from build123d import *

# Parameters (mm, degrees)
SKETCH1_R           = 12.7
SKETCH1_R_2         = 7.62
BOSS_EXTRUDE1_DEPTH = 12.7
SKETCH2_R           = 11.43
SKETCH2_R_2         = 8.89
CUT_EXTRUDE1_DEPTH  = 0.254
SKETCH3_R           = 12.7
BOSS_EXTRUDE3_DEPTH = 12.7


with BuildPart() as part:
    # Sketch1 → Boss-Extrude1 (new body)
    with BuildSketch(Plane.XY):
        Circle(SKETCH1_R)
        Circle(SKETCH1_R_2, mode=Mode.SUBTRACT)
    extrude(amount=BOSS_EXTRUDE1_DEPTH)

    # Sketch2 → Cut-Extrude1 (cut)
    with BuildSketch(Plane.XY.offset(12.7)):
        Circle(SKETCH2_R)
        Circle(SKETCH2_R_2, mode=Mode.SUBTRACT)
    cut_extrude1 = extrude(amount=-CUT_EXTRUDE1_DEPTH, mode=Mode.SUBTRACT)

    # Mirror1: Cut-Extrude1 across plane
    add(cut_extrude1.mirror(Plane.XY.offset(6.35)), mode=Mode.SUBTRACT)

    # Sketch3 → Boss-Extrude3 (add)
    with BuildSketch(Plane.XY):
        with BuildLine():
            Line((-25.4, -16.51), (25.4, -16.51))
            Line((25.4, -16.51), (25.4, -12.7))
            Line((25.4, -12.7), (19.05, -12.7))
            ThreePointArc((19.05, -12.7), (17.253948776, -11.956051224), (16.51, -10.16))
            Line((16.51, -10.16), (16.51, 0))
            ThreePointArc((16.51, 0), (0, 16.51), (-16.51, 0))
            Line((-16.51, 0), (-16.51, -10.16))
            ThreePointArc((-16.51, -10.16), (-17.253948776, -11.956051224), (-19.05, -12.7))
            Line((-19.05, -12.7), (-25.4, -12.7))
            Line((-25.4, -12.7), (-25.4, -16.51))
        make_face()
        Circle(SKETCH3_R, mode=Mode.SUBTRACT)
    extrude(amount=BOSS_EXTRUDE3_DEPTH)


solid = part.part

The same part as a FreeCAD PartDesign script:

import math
import FreeCAD as App
import Part
import Sketcher
from FreeCAD import Vector
Q = App.Units.Quantity

doc = App.newDocument("Part")
body = doc.addObject("PartDesign::Body", "Body")

sketch1 = body.newObject("Sketcher::SketchObject", "Sketch")
sketch1.AttachmentSupport = (doc.getObject("XY_Plane"), [""])
sketch1.MapMode = "FlatFace"
sketch1.addGeometry([
    Part.Circle(Vector(0, 0, 0), Vector(0, 0, 1), 13),
    Part.Circle(Vector(0, 0, 0), Vector(0, 0, 1), 8),
], False)
sketch1.addConstraint([
    Sketcher.Constraint("Coincident", 0, 3, -1, 1),
    Sketcher.Constraint("Coincident", 1, 3, -1, 1),
    Sketcher.Constraint("Diameter", 0, Q("1 in")),
    Sketcher.Constraint("Diameter", 1, Q("0.6 in")),
])
pad1 = body.newObject("PartDesign::Pad", "Pad")
pad1.Profile = sketch1
pad1.Length = Q("0.5 in")

sketch2 = body.newObject("Sketcher::SketchObject", "Sketch001")
sketch2.AttachmentSupport = (doc.getObject("XY_Plane"), [""])
sketch2.MapMode = "FlatFace"
sketch2.AttachmentOffset = App.Placement(Vector(0, 0, 0.5 * 25.4), App.Rotation())
sketch2.addGeometry([
    Part.Circle(Vector(0, 0, 0), Vector(0, 0, 1), 11),
    Part.Circle(Vector(0, 0, 0), Vector(0, 0, 1), 9),
], False)
sketch2.addConstraint([
    Sketcher.Constraint("Coincident", 0, 3, -1, 1),
    Sketcher.Constraint("Coincident", 1, 3, -1, 1),
    Sketcher.Constraint("Diameter", 0, Q("0.9 in")),
    Sketcher.Constraint("Diameter", 1, Q("0.7 in")),
])
pocket1 = body.newObject("PartDesign::Pocket", "Pocket")
pocket1.Profile = sketch2
pocket1.Length = Q("0.01 in")
doc.recompute()

datumplane = body.newObject("PartDesign::Plane", "DatumPlane")
datumplane.AttachmentSupport = (doc.getObject("XY_Plane"), [""])
datumplane.MapMode = "FlatFace"
datumplane.AttachmentOffset = App.Placement(Vector(0, 0, 0.25 * 25.4), App.Rotation())
mirrored = body.newObject("PartDesign::Mirrored", "Mirrored")
mirrored.Originals = [pocket1]
mirrored.MirrorPlane = (datumplane, [""])
body.Tip = mirrored

sketch3 = body.newObject("Sketcher::SketchObject", "Sketch002")
sketch3.AttachmentSupport = (doc.getObject("XY_Plane"), [""])
sketch3.MapMode = "FlatFace"
sketch3.addGeometry([
    Part.LineSegment(Vector(-25.4, -16.5, 0), Vector(25.4, -16.5, 0)),
    Part.LineSegment(Vector(25.4, -16.5, 0), Vector(25.4, -12.7, 0)),
    Part.LineSegment(Vector(25.4, -12.7, 0), Vector(19.1, -12.7, 0)),
    Part.ArcOfCircle(Part.Circle(Vector(19.1, -10.2, 0), Vector(0, 0, 1), 2.5), math.radians(-180), math.radians(-90)),
    Part.LineSegment(Vector(16.5, -10.2, 0), Vector(16.5, 0, 0)),
    Part.ArcOfCircle(Part.Circle(Vector(0, 0, 0), Vector(0, 0, 1), 16.5), math.radians(0), math.radians(180)),
    Part.LineSegment(Vector(-16.5, 0, 0), Vector(-16.5, -10.2, 0)),
    Part.ArcOfCircle(Part.Circle(Vector(-19.1, -10.2, 0), Vector(0, 0, 1), 2.5), math.radians(-90), math.radians(0)),
    Part.LineSegment(Vector(-19.1, -12.7, 0), Vector(-25.4, -12.7, 0)),
    Part.LineSegment(Vector(-25.4, -12.7, 0), Vector(-25.4, -16.5, 0)),
    Part.Circle(Vector(0, 0, 0), Vector(0, 0, 1), 12.7),
], False)
sketch3.addConstraint([
    Sketcher.Constraint("Coincident", 0, 2, 1, 1),
    Sketcher.Constraint("Coincident", 1, 2, 2, 1),
    Sketcher.Constraint("Tangent", 2, 2, 3, 2),
    Sketcher.Constraint("Tangent", 3, 1, 4, 1),
    Sketcher.Constraint("Tangent", 4, 2, 5, 1),
    Sketcher.Constraint("Tangent", 5, 2, 6, 1),
    Sketcher.Constraint("Tangent", 6, 2, 7, 2),
    Sketcher.Constraint("Tangent", 7, 1, 8, 1),
    Sketcher.Constraint("Coincident", 8, 2, 9, 1),
    Sketcher.Constraint("Coincident", 9, 2, 0, 1),
    Sketcher.Constraint("Horizontal", 0),
    Sketcher.Constraint("Vertical", 1),
    Sketcher.Constraint("Horizontal", 2),
    Sketcher.Constraint("Vertical", 4),
    Sketcher.Constraint("Vertical", 6),
    Sketcher.Constraint("Horizontal", 8),
    Sketcher.Constraint("Vertical", 9),
    Sketcher.Constraint("Coincident", 5, 3, -1, 1),
    Sketcher.Constraint("Coincident", 10, 3, -1, 1),
    Sketcher.Constraint("Equal", 3, 7),
    Sketcher.Constraint("Symmetric", 1, 2, 8, 2, -2),
    Sketcher.Constraint("Diameter", 10, Q("1 in")),
    Sketcher.Constraint("Radius", 3, Q("0.1 in")),
    Sketcher.Constraint("DistanceX", 0, 1, 0, 2, Q("2 in")),
    Sketcher.Constraint("Radius", 5, Q("0.65 in")),
    Sketcher.Constraint("DistanceY", 4, 1, 4, 2, Q("0.4 in")),
    Sketcher.Constraint("DistanceY", 1, 1, 1, 2, Q("0.15 in")),
])
pad2 = body.newObject("PartDesign::Pad", "Pad001")
pad2.Profile = sketch3
pad2.Length = Q("0.5 in")

doc.recompute()
